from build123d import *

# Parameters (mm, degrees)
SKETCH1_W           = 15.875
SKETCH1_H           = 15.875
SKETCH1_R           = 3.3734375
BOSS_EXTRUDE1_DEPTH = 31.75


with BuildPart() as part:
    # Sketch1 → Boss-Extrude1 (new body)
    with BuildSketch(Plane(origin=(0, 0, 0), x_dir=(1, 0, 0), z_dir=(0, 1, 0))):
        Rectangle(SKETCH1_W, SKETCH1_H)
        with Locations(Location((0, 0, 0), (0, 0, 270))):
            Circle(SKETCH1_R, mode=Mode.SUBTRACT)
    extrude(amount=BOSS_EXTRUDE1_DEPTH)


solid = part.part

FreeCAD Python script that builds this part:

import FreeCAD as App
import Part
import Sketcher
from FreeCAD import Vector
Q = App.Units.Quantity

doc = App.newDocument("Part")
body = doc.addObject("PartDesign::Body", "Body")

sketch1 = doc.addObject("Sketcher::SketchObject", "Sketch")
body.addObject(sketch1)
sketch1.AttachmentSupport = (doc.XZ_Plane, [""])
sketch1.MapMode = "FlatFace"
sketch1.addGeometry([
    Part.LineSegment(Vector(-7.9, -7.9, 0), Vector(-7.9, 7.9, 0)),
    Part.LineSegment(Vector(-7.9, 7.9, 0), Vector(7.9, 7.9, 0)),
    Part.LineSegment(Vector(7.9, 7.9, 0), Vector(7.9, -7.9, 0)),
    Part.LineSegment(Vector(7.9, -7.9, 0), Vector(-7.9, -7.9, 0)),
    Part.Circle(Vector(0, 0, 0), Vector(0, 0, 1), 3.4),
], False)
sketch1.addConstraint([
    Sketcher.Constraint("Coincident", 0, 2, 1, 1),
    Sketcher.Constraint("Coincident", 1, 2, 2, 1),
    Sketcher.Constraint("Coincident", 2, 2, 3, 1),
    Sketcher.Constraint("Coincident", 3, 2, 0, 1),
    Sketcher.Constraint("Vertical", 0),
    Sketcher.Constraint("Horizontal", 1),
    Sketcher.Constraint("Vertical", 2),
    Sketcher.Constraint("Horizontal", 3),
    Sketcher.Constraint("Coincident", 4, 3, -1, 1),
    Sketcher.Constraint("Symmetric", 0, 2, 2, 2, -1, 1),
    Sketcher.Constraint("Equal", 3, 0),
    Sketcher.Constraint("Diameter", 4, Q("0.265625 in")),
    Sketcher.Constraint("DistanceX", 1, 1, 1, 2, Q("0.625 in")),
])
pad1 = doc.addObject("PartDesign::Pad", "Pad")
body.addObject(pad1)
pad1.Profile = sketch1
pad1.Length = Q("1.25 in")
pad1.Reversed = True

doc.recompute()
